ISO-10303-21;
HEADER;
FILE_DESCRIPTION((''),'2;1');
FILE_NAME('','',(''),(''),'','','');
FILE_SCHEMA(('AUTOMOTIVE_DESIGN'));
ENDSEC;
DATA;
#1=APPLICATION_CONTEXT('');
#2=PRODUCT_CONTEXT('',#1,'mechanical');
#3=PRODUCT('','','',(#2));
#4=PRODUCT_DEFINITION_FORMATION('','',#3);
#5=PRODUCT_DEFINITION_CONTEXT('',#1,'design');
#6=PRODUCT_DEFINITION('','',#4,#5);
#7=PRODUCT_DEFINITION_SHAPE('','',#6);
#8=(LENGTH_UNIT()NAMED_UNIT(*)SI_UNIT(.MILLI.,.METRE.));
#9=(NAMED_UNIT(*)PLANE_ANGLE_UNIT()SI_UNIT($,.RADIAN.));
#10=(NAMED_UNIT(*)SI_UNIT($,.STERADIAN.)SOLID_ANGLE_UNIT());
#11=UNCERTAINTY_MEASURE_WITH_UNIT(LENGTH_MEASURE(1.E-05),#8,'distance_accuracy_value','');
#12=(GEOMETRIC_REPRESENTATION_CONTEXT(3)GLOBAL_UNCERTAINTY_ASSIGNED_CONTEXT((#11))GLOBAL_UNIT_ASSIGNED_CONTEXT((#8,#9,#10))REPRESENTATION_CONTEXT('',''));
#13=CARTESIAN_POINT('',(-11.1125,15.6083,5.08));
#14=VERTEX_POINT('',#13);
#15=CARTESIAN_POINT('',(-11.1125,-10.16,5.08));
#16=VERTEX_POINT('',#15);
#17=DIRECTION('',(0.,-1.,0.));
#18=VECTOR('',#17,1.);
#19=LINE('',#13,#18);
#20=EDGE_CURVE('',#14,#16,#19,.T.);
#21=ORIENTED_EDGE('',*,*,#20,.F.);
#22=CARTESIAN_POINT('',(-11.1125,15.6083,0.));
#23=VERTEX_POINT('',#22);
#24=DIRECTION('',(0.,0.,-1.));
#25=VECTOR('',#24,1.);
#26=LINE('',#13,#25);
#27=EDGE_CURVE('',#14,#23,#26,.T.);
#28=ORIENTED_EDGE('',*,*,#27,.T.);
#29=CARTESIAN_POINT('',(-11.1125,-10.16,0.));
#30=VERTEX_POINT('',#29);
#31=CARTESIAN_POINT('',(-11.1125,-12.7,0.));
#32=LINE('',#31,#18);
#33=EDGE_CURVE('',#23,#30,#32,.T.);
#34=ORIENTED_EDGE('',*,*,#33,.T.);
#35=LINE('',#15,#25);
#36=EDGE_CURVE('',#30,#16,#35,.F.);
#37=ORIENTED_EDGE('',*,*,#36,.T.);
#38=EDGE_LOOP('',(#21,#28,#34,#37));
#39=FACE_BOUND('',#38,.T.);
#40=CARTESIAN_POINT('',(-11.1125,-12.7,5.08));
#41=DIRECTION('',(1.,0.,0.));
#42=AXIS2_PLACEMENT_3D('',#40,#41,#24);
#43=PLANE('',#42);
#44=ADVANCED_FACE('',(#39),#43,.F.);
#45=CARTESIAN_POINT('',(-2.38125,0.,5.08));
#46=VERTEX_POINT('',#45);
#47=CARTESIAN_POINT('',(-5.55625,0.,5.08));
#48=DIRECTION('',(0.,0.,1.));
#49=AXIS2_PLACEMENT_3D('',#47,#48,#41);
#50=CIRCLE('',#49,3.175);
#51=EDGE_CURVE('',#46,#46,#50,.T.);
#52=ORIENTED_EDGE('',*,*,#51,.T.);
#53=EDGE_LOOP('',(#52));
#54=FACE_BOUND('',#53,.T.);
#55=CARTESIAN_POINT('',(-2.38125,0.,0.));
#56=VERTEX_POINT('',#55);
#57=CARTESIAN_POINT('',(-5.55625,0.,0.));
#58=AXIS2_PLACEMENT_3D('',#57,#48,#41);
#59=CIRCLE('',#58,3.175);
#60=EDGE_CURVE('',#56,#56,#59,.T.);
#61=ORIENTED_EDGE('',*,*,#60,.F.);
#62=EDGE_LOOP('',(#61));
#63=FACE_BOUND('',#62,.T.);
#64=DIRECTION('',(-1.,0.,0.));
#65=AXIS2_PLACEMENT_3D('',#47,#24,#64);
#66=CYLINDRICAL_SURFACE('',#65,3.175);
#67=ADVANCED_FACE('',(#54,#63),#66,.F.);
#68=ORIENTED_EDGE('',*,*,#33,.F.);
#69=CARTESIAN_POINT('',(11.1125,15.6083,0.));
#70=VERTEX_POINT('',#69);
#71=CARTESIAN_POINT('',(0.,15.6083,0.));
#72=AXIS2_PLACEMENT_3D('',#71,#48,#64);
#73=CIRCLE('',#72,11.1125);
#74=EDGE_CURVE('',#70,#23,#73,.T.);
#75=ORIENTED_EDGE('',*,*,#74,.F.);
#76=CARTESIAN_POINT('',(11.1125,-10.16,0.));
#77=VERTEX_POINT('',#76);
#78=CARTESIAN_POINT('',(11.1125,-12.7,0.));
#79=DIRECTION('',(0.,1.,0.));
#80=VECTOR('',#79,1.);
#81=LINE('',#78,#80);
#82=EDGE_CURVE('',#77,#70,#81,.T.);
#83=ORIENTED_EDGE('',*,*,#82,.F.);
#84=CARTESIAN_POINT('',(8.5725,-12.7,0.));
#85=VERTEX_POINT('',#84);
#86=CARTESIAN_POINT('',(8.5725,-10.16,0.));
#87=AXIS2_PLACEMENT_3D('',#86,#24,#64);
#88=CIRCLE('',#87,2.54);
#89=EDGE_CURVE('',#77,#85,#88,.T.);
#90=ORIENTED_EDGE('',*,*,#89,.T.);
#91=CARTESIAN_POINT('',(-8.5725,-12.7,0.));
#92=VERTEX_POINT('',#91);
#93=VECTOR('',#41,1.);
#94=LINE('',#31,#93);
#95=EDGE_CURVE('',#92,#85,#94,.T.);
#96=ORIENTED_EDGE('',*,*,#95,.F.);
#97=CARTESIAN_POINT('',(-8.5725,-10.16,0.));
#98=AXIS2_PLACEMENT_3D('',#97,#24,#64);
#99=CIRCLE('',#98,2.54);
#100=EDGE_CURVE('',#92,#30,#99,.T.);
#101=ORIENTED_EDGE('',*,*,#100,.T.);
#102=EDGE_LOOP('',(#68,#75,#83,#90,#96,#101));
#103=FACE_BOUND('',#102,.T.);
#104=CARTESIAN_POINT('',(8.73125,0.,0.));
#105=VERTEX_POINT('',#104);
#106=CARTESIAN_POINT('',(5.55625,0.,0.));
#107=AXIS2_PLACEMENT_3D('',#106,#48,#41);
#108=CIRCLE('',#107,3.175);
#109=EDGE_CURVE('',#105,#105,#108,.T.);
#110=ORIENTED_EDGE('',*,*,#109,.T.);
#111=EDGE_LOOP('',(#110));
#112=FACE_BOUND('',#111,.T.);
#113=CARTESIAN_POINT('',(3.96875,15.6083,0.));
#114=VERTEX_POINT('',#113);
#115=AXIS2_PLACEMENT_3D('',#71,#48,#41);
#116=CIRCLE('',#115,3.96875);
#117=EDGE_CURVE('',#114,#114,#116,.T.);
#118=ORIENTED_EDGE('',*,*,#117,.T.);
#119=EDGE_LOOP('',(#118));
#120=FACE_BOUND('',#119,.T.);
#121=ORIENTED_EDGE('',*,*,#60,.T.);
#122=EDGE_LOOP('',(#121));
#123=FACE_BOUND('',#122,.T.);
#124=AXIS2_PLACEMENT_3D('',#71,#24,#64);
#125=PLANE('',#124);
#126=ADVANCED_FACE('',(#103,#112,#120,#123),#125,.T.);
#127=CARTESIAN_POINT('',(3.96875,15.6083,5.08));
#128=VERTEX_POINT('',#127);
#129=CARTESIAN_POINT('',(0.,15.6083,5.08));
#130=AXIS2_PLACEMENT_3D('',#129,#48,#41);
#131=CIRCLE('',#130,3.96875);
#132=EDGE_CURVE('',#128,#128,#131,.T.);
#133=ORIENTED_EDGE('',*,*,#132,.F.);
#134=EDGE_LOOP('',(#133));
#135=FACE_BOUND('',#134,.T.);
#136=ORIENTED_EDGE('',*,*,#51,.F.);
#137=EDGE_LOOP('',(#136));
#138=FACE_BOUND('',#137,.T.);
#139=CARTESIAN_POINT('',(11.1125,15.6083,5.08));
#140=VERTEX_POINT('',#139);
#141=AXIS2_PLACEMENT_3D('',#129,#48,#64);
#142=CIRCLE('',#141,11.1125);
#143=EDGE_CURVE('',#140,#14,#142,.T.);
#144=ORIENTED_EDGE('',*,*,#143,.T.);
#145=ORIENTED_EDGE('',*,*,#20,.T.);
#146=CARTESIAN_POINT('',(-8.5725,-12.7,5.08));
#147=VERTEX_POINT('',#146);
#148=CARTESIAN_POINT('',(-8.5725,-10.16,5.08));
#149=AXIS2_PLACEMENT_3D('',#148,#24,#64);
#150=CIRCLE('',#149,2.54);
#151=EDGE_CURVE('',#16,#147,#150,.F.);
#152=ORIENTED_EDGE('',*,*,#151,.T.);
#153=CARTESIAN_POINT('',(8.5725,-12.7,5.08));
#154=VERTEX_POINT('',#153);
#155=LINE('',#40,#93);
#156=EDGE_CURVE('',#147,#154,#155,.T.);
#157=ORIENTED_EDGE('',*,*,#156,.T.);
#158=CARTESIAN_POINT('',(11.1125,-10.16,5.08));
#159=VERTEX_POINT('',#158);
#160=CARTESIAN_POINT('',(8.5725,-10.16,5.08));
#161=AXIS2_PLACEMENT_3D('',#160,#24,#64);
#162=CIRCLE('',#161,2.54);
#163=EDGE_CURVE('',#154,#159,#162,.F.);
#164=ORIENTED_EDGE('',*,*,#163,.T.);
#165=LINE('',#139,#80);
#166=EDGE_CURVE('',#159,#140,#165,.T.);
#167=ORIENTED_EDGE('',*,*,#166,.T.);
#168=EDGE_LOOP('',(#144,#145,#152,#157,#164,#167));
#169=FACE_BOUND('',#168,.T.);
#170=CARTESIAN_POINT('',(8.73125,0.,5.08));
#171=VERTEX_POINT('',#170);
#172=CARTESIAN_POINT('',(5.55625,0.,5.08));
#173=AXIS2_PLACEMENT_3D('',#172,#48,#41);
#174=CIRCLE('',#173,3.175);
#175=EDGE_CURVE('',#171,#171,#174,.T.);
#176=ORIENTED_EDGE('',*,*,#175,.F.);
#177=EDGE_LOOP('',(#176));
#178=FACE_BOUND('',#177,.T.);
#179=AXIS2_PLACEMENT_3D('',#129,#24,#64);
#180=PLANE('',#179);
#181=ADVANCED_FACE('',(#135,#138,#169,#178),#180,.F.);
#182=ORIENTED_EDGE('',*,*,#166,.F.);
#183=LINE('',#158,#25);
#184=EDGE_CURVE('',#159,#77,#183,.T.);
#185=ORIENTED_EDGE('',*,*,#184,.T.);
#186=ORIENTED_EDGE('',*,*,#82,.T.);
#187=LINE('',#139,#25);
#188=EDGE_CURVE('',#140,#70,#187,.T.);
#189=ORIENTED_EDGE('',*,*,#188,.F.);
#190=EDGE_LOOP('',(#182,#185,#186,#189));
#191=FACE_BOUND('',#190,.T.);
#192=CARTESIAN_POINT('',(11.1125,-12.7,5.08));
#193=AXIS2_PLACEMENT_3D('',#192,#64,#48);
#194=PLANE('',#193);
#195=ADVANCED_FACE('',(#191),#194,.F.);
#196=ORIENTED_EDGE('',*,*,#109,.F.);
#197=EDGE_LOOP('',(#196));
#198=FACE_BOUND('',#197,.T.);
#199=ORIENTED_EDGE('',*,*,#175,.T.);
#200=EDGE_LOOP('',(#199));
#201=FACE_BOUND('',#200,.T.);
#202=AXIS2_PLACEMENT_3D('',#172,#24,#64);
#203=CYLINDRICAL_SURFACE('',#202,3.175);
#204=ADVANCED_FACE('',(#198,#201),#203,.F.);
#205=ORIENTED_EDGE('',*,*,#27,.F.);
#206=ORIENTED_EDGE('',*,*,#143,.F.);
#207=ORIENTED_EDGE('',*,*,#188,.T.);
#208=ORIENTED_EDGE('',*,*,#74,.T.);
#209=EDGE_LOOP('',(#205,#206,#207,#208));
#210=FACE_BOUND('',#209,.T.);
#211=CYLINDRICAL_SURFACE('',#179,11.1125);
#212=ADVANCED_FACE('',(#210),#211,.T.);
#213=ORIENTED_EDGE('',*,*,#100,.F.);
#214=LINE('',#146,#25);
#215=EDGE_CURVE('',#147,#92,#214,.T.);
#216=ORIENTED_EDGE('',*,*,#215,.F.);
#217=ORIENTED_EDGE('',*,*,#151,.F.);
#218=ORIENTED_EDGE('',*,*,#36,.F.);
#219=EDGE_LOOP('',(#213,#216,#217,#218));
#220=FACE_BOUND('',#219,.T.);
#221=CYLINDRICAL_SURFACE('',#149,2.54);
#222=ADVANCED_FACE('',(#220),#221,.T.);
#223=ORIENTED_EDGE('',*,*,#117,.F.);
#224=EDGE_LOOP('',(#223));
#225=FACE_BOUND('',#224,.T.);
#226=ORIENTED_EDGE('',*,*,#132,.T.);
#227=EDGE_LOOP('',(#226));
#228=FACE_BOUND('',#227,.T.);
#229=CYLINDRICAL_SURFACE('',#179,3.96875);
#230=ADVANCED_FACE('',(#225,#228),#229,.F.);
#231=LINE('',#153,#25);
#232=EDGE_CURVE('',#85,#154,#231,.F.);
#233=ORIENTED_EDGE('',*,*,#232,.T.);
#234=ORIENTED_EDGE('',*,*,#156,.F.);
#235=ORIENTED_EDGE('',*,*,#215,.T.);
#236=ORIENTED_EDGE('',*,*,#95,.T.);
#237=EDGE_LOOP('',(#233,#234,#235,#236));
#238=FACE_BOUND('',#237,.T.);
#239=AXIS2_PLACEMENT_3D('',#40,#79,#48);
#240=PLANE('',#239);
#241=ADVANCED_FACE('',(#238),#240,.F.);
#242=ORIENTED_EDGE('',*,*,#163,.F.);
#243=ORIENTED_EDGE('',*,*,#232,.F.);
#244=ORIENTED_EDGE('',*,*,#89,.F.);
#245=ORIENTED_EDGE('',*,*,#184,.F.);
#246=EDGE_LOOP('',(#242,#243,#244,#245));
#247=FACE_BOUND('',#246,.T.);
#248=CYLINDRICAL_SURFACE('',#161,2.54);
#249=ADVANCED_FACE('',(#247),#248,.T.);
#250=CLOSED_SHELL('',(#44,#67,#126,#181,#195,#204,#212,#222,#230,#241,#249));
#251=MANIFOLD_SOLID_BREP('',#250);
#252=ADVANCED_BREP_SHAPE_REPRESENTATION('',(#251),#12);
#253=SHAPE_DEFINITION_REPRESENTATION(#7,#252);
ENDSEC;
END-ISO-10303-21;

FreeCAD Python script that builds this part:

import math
import FreeCAD as App
import Part
import Sketcher
from FreeCAD import Vector
Q = App.Units.Quantity


def edges_at(feature, points):
    """Names of the edges that pass closest to the given points."""
    edges = feature.Shape.Edges
    near = lambda p: min(range(len(edges)), key=lambda i: edges[i].distToShape(Part.Vertex(*p))[0])
    return sorted({f"Edge{near(p) + 1}" for p in points})

doc = App.newDocument("Part")
body = doc.addObject("PartDesign::Body", "Body")

# Sketch on XY plane
sketch1 = body.newObject("Sketcher::SketchObject", "Sketch")
sketch1.AttachmentSupport = (doc.getObject("XY_Plane"), [""])
sketch1.MapMode = "FlatFace"
sketch1.addGeometry(Part.LineSegment(Vector(-11.1, 15.6, 0), Vector(-11.1, -12.7, 0)), False)
sketch1.addGeometry(Part.LineSegment(Vector(-11.1, -12.7, 0), Vector(11.1, -12.7, 0)), False)
sketch1.addGeometry(Part.LineSegment(Vector(11.1, -12.7, 0), Vector(11.1, 15.6, 0)), False)
sketch1.addGeometry(Part.ArcOfCircle(Part.Circle(Vector(0, 15.6, 0), Vector(0, 0, 1), 11.1), math.radians(0), math.radians(180)), False)
sketch1.addGeometry(Part.Circle(Vector(-5.6, 0, 0), Vector(0, 0, 1), 3.2), False)
sketch1.addGeometry(Part.Circle(Vector(5.6, 0, 0), Vector(0, 0, 1), 3.2), False)
sketch1.addGeometry(Part.Circle(Vector(0, 15.6, 0), Vector(0, 0, 1), 4), False)
sketch1.addConstraint(Sketcher.Constraint("Coincident", 0, 2, 1, 1))
sketch1.addConstraint(Sketcher.Constraint("Coincident", 1, 2, 2, 1))
sketch1.addConstraint(Sketcher.Constraint("Tangent", 2, 2, 3, 1))
sketch1.addConstraint(Sketcher.Constraint("Tangent", 3, 2, 0, 1))
sketch1.addConstraint(Sketcher.Constraint("Vertical", 0))
sketch1.addConstraint(Sketcher.Constraint("Horizontal", 1))
sketch1.addConstraint(Sketcher.Constraint("Vertical", 2))
sketch1.addConstraint(Sketcher.Constraint("Coincident", 6, 3, 3, 3))
sketch1.addConstraint(Sketcher.Constraint("Equal", 4, 5))
sketch1.addConstraint(Sketcher.Constraint("Symmetric", 4, 3, 5, 3, -1, 1))
sketch1.addConstraint(Sketcher.Constraint("PointOnObject", 3, 3, -2))
sketch1.addConstraint(Sketcher.Constraint("PointOnObject", 4, 3, -1))
sketch1.addConstraint(Sketcher.Constraint("Diameter", 4, Q("0.25 in")))
sketch1.addConstraint(Sketcher.Constraint("Diameter", 6, Q("0.3125 in")))
sketch1.addConstraint(Sketcher.Constraint("Radius", 3, Q("0.4375 in")))
sketch1.addConstraint(Sketcher.Constraint("DistanceY", 0, 2, -1, 1, Q("0.5 in")))
sketch1.addConstraint(Sketcher.Constraint("DistanceY", 0, 2, 0, 1, Q("1.1145 in")))
sketch1.addConstraint(Sketcher.Constraint("DistanceX", 4, 3, -1, 1, Q("0.21875 in")))
pad1 = body.newObject("PartDesign::Pad", "Pad")
pad1.Profile = sketch1
pad1.Length = Q("0.2 in")
doc.recompute()

fillet = body.newObject("PartDesign::Fillet", "Fillet")
fillet.Base = (pad1, edges_at(pad1, [(11.113, -12.7, 2.54), (-11.113, -12.7, 2.54)]))
fillet.Radius = Q("0.1 in")

doc.recompute()
